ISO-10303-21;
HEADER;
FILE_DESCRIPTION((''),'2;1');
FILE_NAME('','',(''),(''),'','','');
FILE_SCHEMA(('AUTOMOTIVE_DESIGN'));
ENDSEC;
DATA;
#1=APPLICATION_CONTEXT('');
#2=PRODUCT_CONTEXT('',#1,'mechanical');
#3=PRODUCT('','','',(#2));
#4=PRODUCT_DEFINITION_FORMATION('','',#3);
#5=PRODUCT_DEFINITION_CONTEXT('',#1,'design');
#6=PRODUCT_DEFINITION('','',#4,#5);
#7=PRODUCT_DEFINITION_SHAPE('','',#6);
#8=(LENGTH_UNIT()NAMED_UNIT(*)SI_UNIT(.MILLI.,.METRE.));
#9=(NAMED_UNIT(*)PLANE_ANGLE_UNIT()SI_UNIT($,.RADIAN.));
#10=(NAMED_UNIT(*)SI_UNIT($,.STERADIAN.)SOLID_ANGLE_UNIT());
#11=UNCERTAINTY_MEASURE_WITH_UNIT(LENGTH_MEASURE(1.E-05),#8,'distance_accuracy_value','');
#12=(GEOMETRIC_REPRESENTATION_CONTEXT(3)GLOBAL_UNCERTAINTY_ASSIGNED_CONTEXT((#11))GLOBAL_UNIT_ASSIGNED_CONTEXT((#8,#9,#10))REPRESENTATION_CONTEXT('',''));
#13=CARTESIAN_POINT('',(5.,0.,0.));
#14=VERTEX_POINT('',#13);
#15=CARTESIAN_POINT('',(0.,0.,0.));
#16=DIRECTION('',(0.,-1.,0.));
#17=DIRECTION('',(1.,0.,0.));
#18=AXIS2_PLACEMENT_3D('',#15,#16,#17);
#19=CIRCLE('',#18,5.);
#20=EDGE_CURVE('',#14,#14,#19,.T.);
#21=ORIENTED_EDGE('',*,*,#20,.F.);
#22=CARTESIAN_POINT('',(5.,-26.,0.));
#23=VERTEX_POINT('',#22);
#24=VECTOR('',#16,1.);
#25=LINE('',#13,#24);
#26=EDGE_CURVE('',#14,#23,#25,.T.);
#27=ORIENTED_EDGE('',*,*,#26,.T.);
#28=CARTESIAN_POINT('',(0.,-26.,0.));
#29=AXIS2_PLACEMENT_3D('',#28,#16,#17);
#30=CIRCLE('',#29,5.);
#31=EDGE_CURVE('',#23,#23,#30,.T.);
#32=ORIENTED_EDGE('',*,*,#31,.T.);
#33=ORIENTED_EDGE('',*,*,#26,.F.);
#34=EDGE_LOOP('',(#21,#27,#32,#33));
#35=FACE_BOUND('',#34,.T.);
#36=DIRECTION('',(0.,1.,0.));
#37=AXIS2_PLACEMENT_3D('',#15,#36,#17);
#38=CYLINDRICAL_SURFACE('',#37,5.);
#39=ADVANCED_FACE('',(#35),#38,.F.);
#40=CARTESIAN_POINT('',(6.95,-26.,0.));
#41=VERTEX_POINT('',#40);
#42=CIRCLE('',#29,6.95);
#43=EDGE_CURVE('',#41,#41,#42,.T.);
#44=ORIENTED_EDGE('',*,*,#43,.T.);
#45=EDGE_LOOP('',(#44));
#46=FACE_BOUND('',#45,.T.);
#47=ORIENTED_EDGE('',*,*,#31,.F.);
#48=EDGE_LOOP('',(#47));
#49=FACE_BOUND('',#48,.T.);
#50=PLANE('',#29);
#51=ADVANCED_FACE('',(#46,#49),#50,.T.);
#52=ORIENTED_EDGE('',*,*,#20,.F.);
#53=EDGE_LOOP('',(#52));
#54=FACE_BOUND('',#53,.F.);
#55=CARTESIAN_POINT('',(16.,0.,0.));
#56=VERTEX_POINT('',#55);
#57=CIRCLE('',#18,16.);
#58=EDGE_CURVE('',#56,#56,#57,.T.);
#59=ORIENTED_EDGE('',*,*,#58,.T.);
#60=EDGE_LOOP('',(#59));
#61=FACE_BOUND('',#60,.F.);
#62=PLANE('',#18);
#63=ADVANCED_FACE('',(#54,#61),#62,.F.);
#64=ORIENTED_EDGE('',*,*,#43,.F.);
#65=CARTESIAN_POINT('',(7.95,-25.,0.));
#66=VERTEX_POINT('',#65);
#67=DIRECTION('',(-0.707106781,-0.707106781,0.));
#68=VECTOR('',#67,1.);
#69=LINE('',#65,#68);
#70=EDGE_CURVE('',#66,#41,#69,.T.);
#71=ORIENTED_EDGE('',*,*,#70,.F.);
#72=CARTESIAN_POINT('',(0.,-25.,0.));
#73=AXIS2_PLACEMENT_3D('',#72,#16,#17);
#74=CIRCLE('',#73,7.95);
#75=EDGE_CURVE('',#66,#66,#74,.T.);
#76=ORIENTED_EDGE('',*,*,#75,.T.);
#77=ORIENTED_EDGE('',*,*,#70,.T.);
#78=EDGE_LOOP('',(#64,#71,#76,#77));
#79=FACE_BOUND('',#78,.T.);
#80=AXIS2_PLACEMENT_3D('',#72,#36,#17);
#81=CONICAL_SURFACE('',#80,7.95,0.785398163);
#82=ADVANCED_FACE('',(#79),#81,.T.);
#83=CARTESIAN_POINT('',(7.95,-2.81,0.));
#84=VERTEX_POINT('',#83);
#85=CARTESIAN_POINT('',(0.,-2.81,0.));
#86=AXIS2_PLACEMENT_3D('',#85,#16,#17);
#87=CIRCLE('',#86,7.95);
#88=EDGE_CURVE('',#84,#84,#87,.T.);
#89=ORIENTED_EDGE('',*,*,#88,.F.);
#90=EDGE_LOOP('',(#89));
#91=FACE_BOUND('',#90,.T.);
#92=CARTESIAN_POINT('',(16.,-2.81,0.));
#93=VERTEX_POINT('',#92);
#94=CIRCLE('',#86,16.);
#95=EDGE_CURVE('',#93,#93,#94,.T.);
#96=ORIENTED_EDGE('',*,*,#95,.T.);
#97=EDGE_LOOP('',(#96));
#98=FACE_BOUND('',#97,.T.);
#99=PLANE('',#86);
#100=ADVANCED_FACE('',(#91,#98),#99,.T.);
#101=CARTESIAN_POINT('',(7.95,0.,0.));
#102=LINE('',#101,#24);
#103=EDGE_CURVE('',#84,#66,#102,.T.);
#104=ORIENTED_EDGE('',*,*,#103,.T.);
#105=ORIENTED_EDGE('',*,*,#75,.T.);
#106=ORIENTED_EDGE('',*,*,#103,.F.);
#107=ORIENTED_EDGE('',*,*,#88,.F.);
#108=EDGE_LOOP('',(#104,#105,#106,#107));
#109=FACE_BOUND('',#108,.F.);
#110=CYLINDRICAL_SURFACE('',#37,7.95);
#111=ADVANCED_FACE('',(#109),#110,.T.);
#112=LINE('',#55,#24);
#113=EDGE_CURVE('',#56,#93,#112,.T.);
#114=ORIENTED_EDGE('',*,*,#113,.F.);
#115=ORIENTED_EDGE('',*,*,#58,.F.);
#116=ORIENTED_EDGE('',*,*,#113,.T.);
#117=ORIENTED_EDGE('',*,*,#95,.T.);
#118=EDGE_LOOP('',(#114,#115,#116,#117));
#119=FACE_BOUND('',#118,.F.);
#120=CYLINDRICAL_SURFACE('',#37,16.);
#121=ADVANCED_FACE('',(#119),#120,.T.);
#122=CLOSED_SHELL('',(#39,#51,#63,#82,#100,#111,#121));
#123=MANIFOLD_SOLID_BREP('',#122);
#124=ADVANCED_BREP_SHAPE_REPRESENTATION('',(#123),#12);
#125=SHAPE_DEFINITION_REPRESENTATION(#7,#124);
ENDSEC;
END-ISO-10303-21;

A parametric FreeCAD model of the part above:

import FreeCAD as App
import Part
import Sketcher


def edges_at(feature, points):
    """Names of the edges that pass closest to the given points."""
    edges = feature.Shape.Edges
    near = lambda p: min(range(len(edges)), key=lambda i: edges[i].distToShape(Part.Vertex(*p))[0])
    return sorted({f"Edge{near(p) + 1}" for p in points})

doc = App.newDocument("Part")
params = doc.addObject("Spreadsheet::Sheet", "Params")
for row, (alias, value) in enumerate([
    ("sketch1_diameter", "10 mm"),
    ("sketch1_diameter2", "15.9 mm"),
    ("pad1_length", "26 mm"),
    ("sketch2_diameter", "32 mm"),
    ("sketch2_diameter2", "15.9 mm"),
    ("pad2_length", "2.81 mm"),
    ("chamfer_size", "1 mm"),
], start=1):
    params.set(f"A{row}", alias)
    params.set(f"B{row}", "=" + value)
    params.setAlias(f"B{row}", alias)

body = doc.addObject("PartDesign::Body", "Body")

# Sketch on XZ plane
sketch1 = body.newObject("Sketcher::SketchObject", "Sketch")
sketch1.AttachmentSupport = (doc.getObject("XZ_Plane"), [""])
sketch1.MapMode = "FlatFace"
sketch1.addGeometry([
    Part.Circle(App.Vector(0, 0, 0), App.Vector(0, 0, 1), 8),
    Part.Circle(App.Vector(0, 0, 0), App.Vector(0, 0, 1), 5),
], False)
sketch1.addConstraint([
    Sketcher.Constraint("Coincident", 0, 3, -1, 1),
    Sketcher.Constraint("Coincident", 1, 3, -1, 1),
    Sketcher.Constraint("Diameter", 1, 10.0),
    Sketcher.Constraint("Diameter", 0, 15.9),
])
sketch1.setExpression("Constraints[2]", "Params.sketch1_diameter")
sketch1.setExpression("Constraints[3]", "Params.sketch1_diameter2")
pad1 = body.newObject("PartDesign::Pad", "Pad")
pad1.Profile = sketch1
pad1.setExpression("Length", "Params.pad1_length")

# Sketch on XZ plane
sketch2 = body.newObject("Sketcher::SketchObject", "Sketch001")
sketch2.AttachmentSupport = (doc.getObject("XZ_Plane"), [""])
sketch2.MapMode = "FlatFace"
sketch2.addGeometry([
    Part.Circle(App.Vector(0, 0, 0), App.Vector(0, 0, 1), 16),
    Part.Circle(App.Vector(0, 0, 0), App.Vector(0, 0, 1), 8),
], False)
sketch2.addConstraint([
    Sketcher.Constraint("Coincident", 0, 3, -1, 1),
    Sketcher.Constraint("Coincident", 1, 3, -1, 1),
    Sketcher.Constraint("Diameter", 0, 32.0),
    Sketcher.Constraint("Diameter", 1, 15.9),
])
sketch2.setExpression("Constraints[2]", "Params.sketch2_diameter")
sketch2.setExpression("Constraints[3]", "Params.sketch2_diameter2")
pad2 = body.newObject("PartDesign::Pad", "Pad001")
pad2.Profile = sketch2
pad2.setExpression("Length", "Params.pad2_length")
doc.recompute()

chamfer = body.newObject("PartDesign::Chamfer", "Chamfer")
chamfer.Base = (pad2, edges_at(pad2, [(-7.95, -26, 0)]))
chamfer.setExpression("Size", "Params.chamfer_size")

doc.recompute()
